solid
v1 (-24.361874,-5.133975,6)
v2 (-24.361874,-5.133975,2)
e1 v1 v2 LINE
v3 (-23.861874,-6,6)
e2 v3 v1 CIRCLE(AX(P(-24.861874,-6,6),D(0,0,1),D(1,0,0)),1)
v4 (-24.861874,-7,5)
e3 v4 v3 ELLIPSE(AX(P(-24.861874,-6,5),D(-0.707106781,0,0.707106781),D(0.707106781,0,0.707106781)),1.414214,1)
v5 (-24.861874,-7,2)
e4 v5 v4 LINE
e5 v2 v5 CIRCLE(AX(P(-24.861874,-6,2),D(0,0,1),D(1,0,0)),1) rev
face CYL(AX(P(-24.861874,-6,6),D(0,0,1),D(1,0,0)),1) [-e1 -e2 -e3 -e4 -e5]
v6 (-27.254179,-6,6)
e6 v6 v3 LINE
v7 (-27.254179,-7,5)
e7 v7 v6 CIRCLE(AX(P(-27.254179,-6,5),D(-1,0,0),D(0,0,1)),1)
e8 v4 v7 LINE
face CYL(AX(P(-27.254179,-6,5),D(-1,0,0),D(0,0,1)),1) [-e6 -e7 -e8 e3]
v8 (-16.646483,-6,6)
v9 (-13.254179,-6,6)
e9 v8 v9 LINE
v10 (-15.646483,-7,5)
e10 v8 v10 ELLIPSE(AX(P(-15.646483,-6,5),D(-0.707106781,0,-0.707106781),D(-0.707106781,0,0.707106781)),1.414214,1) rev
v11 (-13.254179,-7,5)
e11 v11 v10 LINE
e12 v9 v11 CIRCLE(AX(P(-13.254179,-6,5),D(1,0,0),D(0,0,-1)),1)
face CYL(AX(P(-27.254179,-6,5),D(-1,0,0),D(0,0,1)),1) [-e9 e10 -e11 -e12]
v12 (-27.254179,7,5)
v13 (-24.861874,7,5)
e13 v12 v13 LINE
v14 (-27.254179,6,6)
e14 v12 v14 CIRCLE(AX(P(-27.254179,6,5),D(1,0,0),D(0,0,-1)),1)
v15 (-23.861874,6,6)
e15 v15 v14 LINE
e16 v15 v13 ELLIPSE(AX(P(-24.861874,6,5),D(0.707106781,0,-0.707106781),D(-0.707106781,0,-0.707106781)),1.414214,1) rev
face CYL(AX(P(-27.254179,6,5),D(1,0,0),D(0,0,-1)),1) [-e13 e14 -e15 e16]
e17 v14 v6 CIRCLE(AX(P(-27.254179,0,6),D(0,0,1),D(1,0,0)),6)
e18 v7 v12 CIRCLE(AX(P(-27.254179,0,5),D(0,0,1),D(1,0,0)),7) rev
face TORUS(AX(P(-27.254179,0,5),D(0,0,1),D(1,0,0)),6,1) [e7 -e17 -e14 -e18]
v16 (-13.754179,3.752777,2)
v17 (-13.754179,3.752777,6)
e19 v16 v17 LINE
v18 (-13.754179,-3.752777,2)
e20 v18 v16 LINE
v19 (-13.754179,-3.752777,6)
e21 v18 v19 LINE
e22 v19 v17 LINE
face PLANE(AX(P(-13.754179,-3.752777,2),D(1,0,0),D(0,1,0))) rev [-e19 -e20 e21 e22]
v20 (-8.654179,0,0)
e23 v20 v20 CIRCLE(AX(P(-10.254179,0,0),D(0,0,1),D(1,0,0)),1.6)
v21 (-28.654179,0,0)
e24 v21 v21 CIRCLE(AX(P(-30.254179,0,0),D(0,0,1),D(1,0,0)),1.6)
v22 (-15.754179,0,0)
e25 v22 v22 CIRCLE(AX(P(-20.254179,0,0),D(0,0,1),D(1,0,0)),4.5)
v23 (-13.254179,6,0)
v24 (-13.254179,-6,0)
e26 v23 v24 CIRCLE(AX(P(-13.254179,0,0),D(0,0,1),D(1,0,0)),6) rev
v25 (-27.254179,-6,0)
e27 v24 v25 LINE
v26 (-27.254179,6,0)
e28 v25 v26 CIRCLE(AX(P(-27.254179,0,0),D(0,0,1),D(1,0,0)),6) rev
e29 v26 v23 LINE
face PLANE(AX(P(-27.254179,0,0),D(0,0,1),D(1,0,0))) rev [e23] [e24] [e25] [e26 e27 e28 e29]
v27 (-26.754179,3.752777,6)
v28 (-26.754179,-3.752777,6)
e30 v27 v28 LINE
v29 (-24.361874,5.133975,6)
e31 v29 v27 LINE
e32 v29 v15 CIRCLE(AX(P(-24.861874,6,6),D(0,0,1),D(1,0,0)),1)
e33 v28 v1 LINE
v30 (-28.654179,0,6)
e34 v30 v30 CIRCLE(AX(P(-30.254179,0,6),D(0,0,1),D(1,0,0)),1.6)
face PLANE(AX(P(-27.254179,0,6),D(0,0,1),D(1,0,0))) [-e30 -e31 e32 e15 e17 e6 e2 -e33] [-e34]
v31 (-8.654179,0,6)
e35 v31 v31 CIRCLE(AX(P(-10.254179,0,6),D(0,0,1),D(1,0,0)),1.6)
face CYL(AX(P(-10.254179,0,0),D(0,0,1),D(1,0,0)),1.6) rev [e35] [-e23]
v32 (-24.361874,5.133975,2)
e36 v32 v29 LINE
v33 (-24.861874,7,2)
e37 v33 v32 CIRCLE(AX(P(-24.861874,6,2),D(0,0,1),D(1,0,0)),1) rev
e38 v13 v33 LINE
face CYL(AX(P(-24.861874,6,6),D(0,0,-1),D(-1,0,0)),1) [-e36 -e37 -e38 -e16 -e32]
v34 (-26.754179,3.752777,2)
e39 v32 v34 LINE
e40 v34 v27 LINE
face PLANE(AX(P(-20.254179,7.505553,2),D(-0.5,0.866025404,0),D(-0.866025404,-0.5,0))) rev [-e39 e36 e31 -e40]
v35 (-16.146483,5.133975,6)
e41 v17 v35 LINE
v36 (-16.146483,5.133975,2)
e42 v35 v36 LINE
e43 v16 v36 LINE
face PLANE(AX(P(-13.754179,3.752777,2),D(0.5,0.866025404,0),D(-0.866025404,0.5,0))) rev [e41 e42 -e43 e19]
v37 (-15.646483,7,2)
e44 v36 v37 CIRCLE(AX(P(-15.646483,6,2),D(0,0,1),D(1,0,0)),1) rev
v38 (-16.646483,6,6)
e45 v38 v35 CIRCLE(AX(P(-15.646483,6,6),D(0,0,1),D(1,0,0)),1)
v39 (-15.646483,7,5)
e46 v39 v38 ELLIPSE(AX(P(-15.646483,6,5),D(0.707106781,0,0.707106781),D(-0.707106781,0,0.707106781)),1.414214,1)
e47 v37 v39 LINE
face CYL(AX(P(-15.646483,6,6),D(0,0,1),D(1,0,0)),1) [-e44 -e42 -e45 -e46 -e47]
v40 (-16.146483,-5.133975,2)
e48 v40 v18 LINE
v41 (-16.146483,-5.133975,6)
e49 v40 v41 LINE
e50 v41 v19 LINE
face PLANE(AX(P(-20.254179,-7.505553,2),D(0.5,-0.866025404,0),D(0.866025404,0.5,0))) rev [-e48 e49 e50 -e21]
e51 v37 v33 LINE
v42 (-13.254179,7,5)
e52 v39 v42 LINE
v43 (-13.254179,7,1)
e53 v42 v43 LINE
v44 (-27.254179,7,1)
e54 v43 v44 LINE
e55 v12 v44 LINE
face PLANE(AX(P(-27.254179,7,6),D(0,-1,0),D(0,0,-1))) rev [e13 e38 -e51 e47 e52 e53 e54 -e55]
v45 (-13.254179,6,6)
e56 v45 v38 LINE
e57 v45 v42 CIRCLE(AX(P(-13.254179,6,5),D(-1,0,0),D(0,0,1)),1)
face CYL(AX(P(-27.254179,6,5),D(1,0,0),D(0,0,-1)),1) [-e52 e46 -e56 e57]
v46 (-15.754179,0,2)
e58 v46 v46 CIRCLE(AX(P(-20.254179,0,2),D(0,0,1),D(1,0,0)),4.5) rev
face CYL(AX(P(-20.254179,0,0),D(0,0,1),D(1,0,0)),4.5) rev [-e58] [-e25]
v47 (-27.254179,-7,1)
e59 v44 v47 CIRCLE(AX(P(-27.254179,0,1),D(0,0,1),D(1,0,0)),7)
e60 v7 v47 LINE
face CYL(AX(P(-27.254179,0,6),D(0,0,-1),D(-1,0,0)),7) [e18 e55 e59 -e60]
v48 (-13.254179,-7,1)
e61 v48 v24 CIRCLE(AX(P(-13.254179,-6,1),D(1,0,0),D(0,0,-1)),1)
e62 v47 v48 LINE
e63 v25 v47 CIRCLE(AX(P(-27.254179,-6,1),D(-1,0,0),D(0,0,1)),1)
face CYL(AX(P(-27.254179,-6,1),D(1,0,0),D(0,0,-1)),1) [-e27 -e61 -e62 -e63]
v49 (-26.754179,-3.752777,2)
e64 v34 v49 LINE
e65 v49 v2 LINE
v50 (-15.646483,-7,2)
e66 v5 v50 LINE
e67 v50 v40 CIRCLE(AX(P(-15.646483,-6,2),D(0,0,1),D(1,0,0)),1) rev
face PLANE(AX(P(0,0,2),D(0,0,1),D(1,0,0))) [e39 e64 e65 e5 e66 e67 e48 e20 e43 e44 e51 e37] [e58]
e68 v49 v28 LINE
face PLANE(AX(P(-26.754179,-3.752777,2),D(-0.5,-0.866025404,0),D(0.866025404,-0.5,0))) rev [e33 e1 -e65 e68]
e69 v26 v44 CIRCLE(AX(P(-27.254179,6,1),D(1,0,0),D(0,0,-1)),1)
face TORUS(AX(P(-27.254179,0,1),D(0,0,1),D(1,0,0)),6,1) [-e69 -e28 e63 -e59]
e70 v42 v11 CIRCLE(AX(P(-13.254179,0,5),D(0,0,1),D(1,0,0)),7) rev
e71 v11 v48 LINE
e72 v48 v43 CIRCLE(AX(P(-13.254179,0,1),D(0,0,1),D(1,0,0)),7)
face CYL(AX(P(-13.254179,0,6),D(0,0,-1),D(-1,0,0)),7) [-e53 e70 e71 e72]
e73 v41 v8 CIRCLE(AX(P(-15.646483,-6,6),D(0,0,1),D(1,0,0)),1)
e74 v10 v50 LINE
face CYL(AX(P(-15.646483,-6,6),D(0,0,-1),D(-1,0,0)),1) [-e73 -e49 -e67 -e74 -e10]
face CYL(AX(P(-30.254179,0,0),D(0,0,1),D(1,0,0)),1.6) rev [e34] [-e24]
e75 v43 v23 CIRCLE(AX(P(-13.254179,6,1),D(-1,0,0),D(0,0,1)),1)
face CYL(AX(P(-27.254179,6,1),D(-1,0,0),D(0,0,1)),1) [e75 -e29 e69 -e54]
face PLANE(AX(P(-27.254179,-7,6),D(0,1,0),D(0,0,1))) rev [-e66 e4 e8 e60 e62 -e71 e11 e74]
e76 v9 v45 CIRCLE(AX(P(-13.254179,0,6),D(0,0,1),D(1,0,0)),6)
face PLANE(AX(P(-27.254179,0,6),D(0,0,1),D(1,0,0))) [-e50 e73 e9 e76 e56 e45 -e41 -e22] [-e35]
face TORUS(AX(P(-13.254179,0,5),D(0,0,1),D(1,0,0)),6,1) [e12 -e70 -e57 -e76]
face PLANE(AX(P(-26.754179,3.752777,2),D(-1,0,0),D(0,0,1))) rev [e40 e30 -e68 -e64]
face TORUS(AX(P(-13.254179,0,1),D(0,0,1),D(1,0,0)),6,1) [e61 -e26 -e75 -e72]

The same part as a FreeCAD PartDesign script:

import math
import FreeCAD as App
import Part
import Sketcher

V = App.Vector
Q = App.Units.Quantity


def edges_at(feature, points):
    """Names of the edges that pass closest to the given points."""
    edges = feature.Shape.Edges
    near = lambda p: min(range(len(edges)), key=lambda i: edges[i].distToShape(Part.Vertex(*p))[0])
    return sorted({f"Edge{near(p) + 1}" for p in points})

doc = App.newDocument("Part")
params = doc.addObject("Spreadsheet::Sheet", "Params")
for row, (alias, value) in enumerate([
    ("sketch1_radius", "7 mm"),
    ("sketch1_width", "14 mm"),
    ("pad1_length", "6 mm"),
    ("sketch2_diameter", "9 mm"),
    ("sketch2_diameter2", "3.2 mm"),
    ("pocket2_length", "4 mm"),
    ("fillet_radius", "1 mm"),
], start=1):
    params.set(f"A{row}", alias)
    params.set(f"B{row}", "=" + value)
    params.setAlias(f"B{row}", alias)

body = doc.addObject("PartDesign::Body", "Body")

# Sketch on XY plane
sketch1 = body.newObject("Sketcher::SketchObject", "Sketch")
sketch1.AttachmentSupport = (doc.getObject("XY_Plane"), [""])
sketch1.MapMode = "FlatFace"
sketch1.addGeometry(Part.LineSegment(V(-13, 7, 0), V(-27, 7, 0)), False)
sketch1.addGeometry(Part.ArcOfCircle(Part.Circle(V(-27, 0, 0), V(0, 0, 1), 7), math.radians(90), math.radians(270)), False)
sketch1.addGeometry(Part.LineSegment(V(-27, -7, 0), V(-13, -7, 0)), False)
sketch1.addGeometry(Part.ArcOfCircle(Part.Circle(V(-13, 0, 0), V(0, 0, 1), 7), math.radians(-90), math.radians(90)), False)
sketch1.addConstraint(Sketcher.Constraint("Tangent", 0, 2, 1, 1))
sketch1.addConstraint(Sketcher.Constraint("Tangent", 1, 2, 2, 1))
sketch1.addConstraint(Sketcher.Constraint("Tangent", 2, 2, 3, 1))
sketch1.addConstraint(Sketcher.Constraint("Tangent", 3, 2, 0, 1))
sketch1.addConstraint(Sketcher.Constraint("Horizontal", 0))
sketch1.addConstraint(Sketcher.Constraint("Horizontal", 2))
sketch1.addConstraint(Sketcher.Constraint("PointOnObject", 1, 3, -1))
sketch1.addConstraint(Sketcher.Constraint("Radius", 1, 7.0))
sketch1.addConstraint(Sketcher.Constraint("DistanceX", 0, 2, 0, 1, 14.0))
sketch1.addConstraint(Sketcher.Constraint("DistanceX", 1, 3, -1, 1, 27.254179))
sketch1.setExpression("Constraints[7]", "Params.sketch1_radius")
sketch1.setExpression("Constraints[8]", "Params.sketch1_width")
pad1 = body.newObject("PartDesign::Pad", "Pad")
pad1.Profile = sketch1
pad1.setExpression("Length", "Params.pad1_length")

# Sketch on XY plane
sketch2 = body.newObject("Sketcher::SketchObject", "Sketch001")
sketch2.AttachmentSupport = (doc.getObject("XY_Plane"), [""])
sketch2.MapMode = "FlatFace"
sketch2.AttachmentOffset = App.Placement(V(0, 0, 6), App.Rotation())
sketch2.addGeometry(Part.Circle(V(-20.3, 0, 0), V(0, 0, 1), 4.5), False)
sketch2.addGeometry(Part.Circle(V(-30.3, 0, 0), V(0, 0, 1), 1.6), False)
sketch2.addGeometry(Part.Circle(V(-10.3, 0, 0), V(0, 0, 1), 1.6), False)
sketch2.addConstraint(Sketcher.Constraint("Equal", 1, 2))
sketch2.addConstraint(Sketcher.Constraint("PointOnObject", 0, 3, -1))
sketch2.addConstraint(Sketcher.Constraint("PointOnObject", 1, 3, -1))
sketch2.addConstraint(Sketcher.Constraint("PointOnObject", 2, 3, -1))
sketch2.addConstraint(Sketcher.Constraint("Diameter", 0, 9.0))
sketch2.addConstraint(Sketcher.Constraint("Diameter", 1, 3.2))
sketch2.addConstraint(Sketcher.Constraint("DistanceX", 1, 3, 0, 3, 10.0))
sketch2.addConstraint(Sketcher.Constraint("DistanceX", 0, 3, 2, 3, 10.0))
sketch2.addConstraint(Sketcher.Constraint("DistanceX", 0, 3, -1, 1, 20.254179))
sketch2.setExpression("Constraints[4]", "Params.sketch2_diameter")
sketch2.setExpression("Constraints[5]", "Params.sketch2_diameter2")
pocket1 = body.newObject("PartDesign::Pocket", "Pocket")
pocket1.Profile = sketch2
pocket1.Type = "ThroughAll"

# Sketch on XY plane
sketch3 = body.newObject("Sketcher::SketchObject", "Sketch002")
sketch3.AttachmentSupport = (doc.getObject("XY_Plane"), [""])
sketch3.MapMode = "FlatFace"
sketch3.AttachmentOffset = App.Placement(V(0, 0, 6), App.Rotation())
sketch3.addGeometry(Part.LineSegment(V(-14, -4, 0), V(-14, 4, 0)), False)
sketch3.addGeometry(Part.LineSegment(V(-14, 4, 0), V(-20, 8, 0)), False)
sketch3.addGeometry(Part.LineSegment(V(-20, 8, 0), V(-27, 4, 0)), False)
sketch3.addGeometry(Part.LineSegment(V(-27, 4, 0), V(-27, -4, 0)), False)
sketch3.addGeometry(Part.LineSegment(V(-27, -4, 0), V(-20, -8, 0)), False)
sketch3.addGeometry(Part.LineSegment(V(-20, -8, 0), V(-14, -4, 0)), False)
sketch3.addConstraint(Sketcher.Constraint("Coincident", 0, 2, 1, 1))
sketch3.addConstraint(Sketcher.Constraint("Coincident", 1, 2, 2, 1))
sketch3.addConstraint(Sketcher.Constraint("Coincident", 2, 2, 3, 1))
sketch3.addConstraint(Sketcher.Constraint("Coincident", 3, 2, 4, 1))
sketch3.addConstraint(Sketcher.Constraint("Coincident", 4, 2, 5, 1))
sketch3.addConstraint(Sketcher.Constraint("Coincident", 5, 2, 0, 1))
sketch3.addConstraint(Sketcher.Constraint("Vertical", 0))
sketch3.addConstraint(Sketcher.Constraint("Vertical", 3))
sketch3.addConstraint(Sketcher.Constraint("Symmetric", 1, 2, 4, 2, -1))
sketch3.addConstraint(Sketcher.Constraint("Parallel", 1, 4))
sketch3.addConstraint(Sketcher.Constraint("Parallel", 2, 5))
sketch3.addConstraint(Sketcher.Constraint("Horizontal", 0, 2, 2, 2))
sketch3.addConstraint(Sketcher.Constraint("Horizontal", 3, 2, 5, 2))
sketch3.addConstraint(Sketcher.Constraint("Angle", 1, Q("150 deg")))
sketch3.addConstraint(Sketcher.Constraint("DistanceX", 2, 2, 0, 2, 13.0))
sketch3.addConstraint(Sketcher.Constraint("DistanceY", 0, 1, 0, 2, 7.505554))
sketch3.addConstraint(Sketcher.Constraint("DistanceX", 0, 2, -1, 1, 13.754179))
pocket2 = body.newObject("PartDesign::Pocket", "Pocket001")
pocket2.Profile = sketch3
pocket2.setExpression("Length", "Params.pocket2_length")
doc.recompute()

fillet = body.newObject("PartDesign::Fillet", "Fillet")
fillet.Base = (pocket2, edges_at(pocket2, [
    (-6.254, 0, 6),
    (-16.316, 7, 6),
    (-16.316, -7, 6),
    (-24.192, 7, 6),
    (-19.379, -7, 4),
    (-21.13, -7, 4),
    (-21.13, 7, 4),
    (-19.379, 7, 4),
    (-34.254, 0, 6),
    (-20.254, 7, 0),
    (-6.254, 0, 0),
    (-20.254, -7, 0),
    (-34.254, 0, 0),
    (-24.192, -7, 6),
]))
fillet.setExpression("Radius", "Params.fillet_radius")

doc.recompute()
